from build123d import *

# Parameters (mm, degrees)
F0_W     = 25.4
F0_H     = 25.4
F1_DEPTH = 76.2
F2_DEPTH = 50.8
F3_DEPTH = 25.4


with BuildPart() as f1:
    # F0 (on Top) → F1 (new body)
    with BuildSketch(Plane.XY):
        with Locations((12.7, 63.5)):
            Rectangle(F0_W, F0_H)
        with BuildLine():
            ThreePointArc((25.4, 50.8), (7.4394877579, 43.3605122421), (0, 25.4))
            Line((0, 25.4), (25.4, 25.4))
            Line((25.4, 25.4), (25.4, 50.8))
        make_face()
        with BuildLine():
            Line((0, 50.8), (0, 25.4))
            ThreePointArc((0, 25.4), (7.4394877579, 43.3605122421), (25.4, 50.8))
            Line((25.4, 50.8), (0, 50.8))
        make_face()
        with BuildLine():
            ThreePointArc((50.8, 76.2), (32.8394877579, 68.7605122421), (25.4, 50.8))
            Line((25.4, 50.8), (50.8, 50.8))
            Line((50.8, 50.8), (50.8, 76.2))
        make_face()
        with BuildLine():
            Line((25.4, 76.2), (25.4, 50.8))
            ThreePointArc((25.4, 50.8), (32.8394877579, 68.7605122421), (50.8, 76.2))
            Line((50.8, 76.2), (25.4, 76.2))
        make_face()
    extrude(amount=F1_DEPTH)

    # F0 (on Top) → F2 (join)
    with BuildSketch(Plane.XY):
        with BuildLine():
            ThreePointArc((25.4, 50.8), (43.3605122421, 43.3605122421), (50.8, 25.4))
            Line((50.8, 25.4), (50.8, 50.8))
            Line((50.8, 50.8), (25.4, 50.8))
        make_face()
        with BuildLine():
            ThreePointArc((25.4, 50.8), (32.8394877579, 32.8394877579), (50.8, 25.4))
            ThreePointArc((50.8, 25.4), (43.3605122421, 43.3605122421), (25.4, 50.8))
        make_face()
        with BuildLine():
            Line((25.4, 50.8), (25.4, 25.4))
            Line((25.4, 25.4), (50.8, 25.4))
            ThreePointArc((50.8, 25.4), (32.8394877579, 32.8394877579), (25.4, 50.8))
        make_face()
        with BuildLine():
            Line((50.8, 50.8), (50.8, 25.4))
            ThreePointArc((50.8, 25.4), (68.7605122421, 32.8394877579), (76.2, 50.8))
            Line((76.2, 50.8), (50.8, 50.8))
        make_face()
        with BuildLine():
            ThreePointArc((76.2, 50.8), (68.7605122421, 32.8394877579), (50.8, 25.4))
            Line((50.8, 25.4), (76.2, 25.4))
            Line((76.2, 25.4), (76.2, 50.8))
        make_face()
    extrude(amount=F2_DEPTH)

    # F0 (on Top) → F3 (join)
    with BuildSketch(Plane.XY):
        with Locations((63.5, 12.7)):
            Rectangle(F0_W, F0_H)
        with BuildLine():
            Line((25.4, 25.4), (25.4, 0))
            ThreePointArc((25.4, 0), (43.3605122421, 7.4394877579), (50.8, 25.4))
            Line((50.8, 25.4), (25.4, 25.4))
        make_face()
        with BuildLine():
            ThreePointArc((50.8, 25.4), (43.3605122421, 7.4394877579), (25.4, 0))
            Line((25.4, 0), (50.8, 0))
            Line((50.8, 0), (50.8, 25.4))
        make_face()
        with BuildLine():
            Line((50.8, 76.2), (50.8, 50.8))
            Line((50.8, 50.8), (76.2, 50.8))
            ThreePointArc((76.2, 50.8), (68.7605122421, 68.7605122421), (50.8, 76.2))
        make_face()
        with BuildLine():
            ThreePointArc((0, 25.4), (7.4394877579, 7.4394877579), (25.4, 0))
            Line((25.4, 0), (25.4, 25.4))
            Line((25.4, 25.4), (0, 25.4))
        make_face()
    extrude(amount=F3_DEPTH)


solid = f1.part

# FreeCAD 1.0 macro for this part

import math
import FreeCAD as App
import Part
import Sketcher
from FreeCAD import Vector
Q = App.Units.Quantity


def add_polygon(sketch, points):
    """Adds a closed chain of lines whose ends are joined by coincident constraints."""
    first, n = sketch.GeometryCount, len(points)
    for a, b in zip(points, points[1:] + points[:1]):
        sketch.addGeometry(Part.LineSegment(App.Vector(*a, 0), App.Vector(*b, 0)), False)
    for i in range(n):
        sketch.addConstraint(Sketcher.Constraint("Coincident", first + i, 2, first + (i + 1) % n, 1))

doc = App.newDocument("Part")
body = doc.addObject("PartDesign::Body", "Body")

# Sketch on XY plane
sketch1 = body.newObject("Sketcher::SketchObject", "Sketch")
sketch1.AttachmentSupport = (doc.getObject("XY_Plane"), [""])
sketch1.MapMode = "FlatFace"
add_polygon(sketch1, [(0, 76.2), (0, 25.4), (25.4, 25.4), (25.4, 50.8), (50.8, 50.8), (50.8, 76.2)])  # lines 0-5
sketch1.addConstraint(Sketcher.Constraint("Vertical", 0))
sketch1.addConstraint(Sketcher.Constraint("Horizontal", 1))
sketch1.addConstraint(Sketcher.Constraint("Vertical", 2))
sketch1.addConstraint(Sketcher.Constraint("Horizontal", 3))
sketch1.addConstraint(Sketcher.Constraint("Vertical", 4))
sketch1.addConstraint(Sketcher.Constraint("Horizontal", 5))
sketch1.addConstraint(Sketcher.Constraint("PointOnObject", 0, 2, -2))
sketch1.addConstraint(Sketcher.Constraint("Equal", 1, 3))
sketch1.addConstraint(Sketcher.Constraint("Equal", 5, 0))
sketch1.addConstraint(Sketcher.Constraint("Equal", 3, 2))
sketch1.addConstraint(Sketcher.Constraint("DistanceX", 1, 1, 1, 2, Q("1 in")))
sketch1.addConstraint(Sketcher.Constraint("DistanceY", -1, 1, 0, 2, Q("1 in")))
pad1 = body.newObject("PartDesign::Pad", "Pad")
pad1.Profile = sketch1
pad1.Length = Q("3 in")

# Sketch on XY plane
sketch2 = body.newObject("Sketcher::SketchObject", "Sketch001")
sketch2.AttachmentSupport = (doc.getObject("XY_Plane"), [""])
sketch2.MapMode = "FlatFace"
add_polygon(sketch2, [(25.4, 50.8), (25.4, 25.4), (76.2, 25.4), (76.2, 50.8)])  # lines 0-3
sketch2.addConstraint(Sketcher.Constraint("Vertical", 0))
sketch2.addConstraint(Sketcher.Constraint("Horizontal", 1))
sketch2.addConstraint(Sketcher.Constraint("Vertical", 2))
sketch2.addConstraint(Sketcher.Constraint("Horizontal", 3))
sketch2.addConstraint(Sketcher.Constraint("DistanceX", 1, 1, 1, 2, Q("2 in")))
sketch2.addConstraint(Sketcher.Constraint("DistanceY", 0, 2, 0, 1, Q("1 in")))
sketch2.addConstraint(Sketcher.Constraint("DistanceX", -1, 1, 0, 2, Q("1 in")))
sketch2.addConstraint(Sketcher.Constraint("DistanceY", -1, 1, 0, 2, Q("1 in")))
pad2 = body.newObject("PartDesign::Pad", "Pad001")
pad2.Profile = sketch2
pad2.Length = Q("2 in")

# Sketch on XY plane
sketch3 = body.newObject("Sketcher::SketchObject", "Sketch002")
sketch3.AttachmentSupport = (doc.getObject("XY_Plane"), [""])
sketch3.MapMode = "FlatFace"
sketch3.addGeometry(Part.LineSegment(Vector(76.2, 0, 0), Vector(76.2, 25.4, 0)), False)
sketch3.addGeometry(Part.LineSegment(Vector(76.2, 25.4, 0), Vector(0, 25.4, 0)), False)
sketch3.addGeometry(Part.ArcOfCircle(Part.Circle(Vector(25.4, 25.4, 0), Vector(0, 0, 1), 25.4), math.radians(180), math.radians(270)), False)
sketch3.addGeometry(Part.LineSegment(Vector(25.4, 0, 0), Vector(76.2, 0, 0)), False)
sketch3.addGeometry(Part.LineSegment(Vector(50.8, 76.2, 0), Vector(50.8, 50.8, 0)), False)
sketch3.addGeometry(Part.LineSegment(Vector(50.8, 50.8, 0), Vector(76.2, 50.8, 0)), False)
sketch3.addGeometry(Part.ArcOfCircle(Part.Circle(Vector(50.8, 50.8, 0), Vector(0, 0, 1), 25.4), math.radians(0), math.radians(90)), False)
sketch3.addConstraint(Sketcher.Constraint("Coincident", 0, 2, 1, 1))
sketch3.addConstraint(Sketcher.Constraint("Coincident", 1, 2, 2, 1))
sketch3.addConstraint(Sketcher.Constraint("Tangent", 2, 2, 3, 1))
sketch3.addConstraint(Sketcher.Constraint("Coincident", 3, 2, 0, 1))
sketch3.addConstraint(Sketcher.Constraint("Coincident", 4, 2, 5, 1))
sketch3.addConstraint(Sketcher.Constraint("Coincident", 5, 2, 6, 1))
sketch3.addConstraint(Sketcher.Constraint("Coincident", 6, 2, 4, 1))
sketch3.addConstraint(Sketcher.Constraint("Vertical", 0))
sketch3.addConstraint(Sketcher.Constraint("Horizontal", 1))
sketch3.addConstraint(Sketcher.Constraint("Horizontal", 3))
sketch3.addConstraint(Sketcher.Constraint("Vertical", 4))
sketch3.addConstraint(Sketcher.Constraint("Horizontal", 5))
sketch3.addConstraint(Sketcher.Constraint("Coincident", 4, 2, 6, 3))
sketch3.addConstraint(Sketcher.Constraint("Equal", 2, 6))
sketch3.addConstraint(Sketcher.Constraint("PointOnObject", 1, 2, -2))
sketch3.addConstraint(Sketcher.Constraint("PointOnObject", 2, 2, -1))
sketch3.addConstraint(Sketcher.Constraint("Horizontal", 2, 3, 0, 2))
sketch3.addConstraint(Sketcher.Constraint("Vertical", 3, 2, 5, 2))
sketch3.addConstraint(Sketcher.Constraint("Radius", 2, Q("1 in")))
sketch3.addConstraint(Sketcher.Constraint("DistanceX", 1, 2, 1, 1, Q("3 in")))
sketch3.addConstraint(Sketcher.Constraint("DistanceY", -1, 1, 6, 3, Q("2 in")))
pad3 = body.newObject("PartDesign::Pad", "Pad002")
pad3.Profile = sketch3
pad3.Length = Q("1 in")

doc.recompute()
